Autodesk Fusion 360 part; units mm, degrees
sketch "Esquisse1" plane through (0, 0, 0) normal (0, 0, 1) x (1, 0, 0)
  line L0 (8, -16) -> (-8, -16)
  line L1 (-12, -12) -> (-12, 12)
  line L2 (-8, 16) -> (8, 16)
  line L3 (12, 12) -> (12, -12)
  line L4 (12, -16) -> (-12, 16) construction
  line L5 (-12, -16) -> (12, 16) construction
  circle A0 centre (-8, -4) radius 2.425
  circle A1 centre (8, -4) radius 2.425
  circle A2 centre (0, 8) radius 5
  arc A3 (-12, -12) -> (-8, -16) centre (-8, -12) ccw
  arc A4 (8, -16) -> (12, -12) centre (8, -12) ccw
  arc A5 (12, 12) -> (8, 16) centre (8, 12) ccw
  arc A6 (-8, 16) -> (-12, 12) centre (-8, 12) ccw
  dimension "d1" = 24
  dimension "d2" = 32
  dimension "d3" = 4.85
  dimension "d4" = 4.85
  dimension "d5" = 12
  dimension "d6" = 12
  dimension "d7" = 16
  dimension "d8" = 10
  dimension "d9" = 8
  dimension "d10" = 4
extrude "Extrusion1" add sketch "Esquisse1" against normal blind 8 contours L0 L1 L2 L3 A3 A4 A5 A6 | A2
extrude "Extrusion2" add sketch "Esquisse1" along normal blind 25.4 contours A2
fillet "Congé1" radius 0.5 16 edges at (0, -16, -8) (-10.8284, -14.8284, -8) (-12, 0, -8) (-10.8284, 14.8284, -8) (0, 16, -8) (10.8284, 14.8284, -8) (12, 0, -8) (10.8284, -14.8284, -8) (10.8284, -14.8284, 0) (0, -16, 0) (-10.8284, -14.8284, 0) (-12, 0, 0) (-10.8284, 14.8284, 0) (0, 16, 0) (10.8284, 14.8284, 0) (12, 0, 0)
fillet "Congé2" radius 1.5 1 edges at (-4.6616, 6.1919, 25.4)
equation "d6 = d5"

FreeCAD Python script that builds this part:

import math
import FreeCAD as App
import Part
import Sketcher
Q = App.Units.Quantity


def edges_at(feature, points):
    """Names of the edges that pass closest to the given points."""
    edges = feature.Shape.Edges
    near = lambda p: min(range(len(edges)), key=lambda i: edges[i].distToShape(Part.Vertex(*p))[0])
    return sorted({f"Edge{near(p) + 1}" for p in points})

doc = App.newDocument("Part")
body = doc.addObject("PartDesign::Body", "Body")

# Sketch on XY plane
sketch1 = body.newObject("Sketcher::SketchObject", "Sketch")
sketch1.AttachmentSupport = (doc.getObject("XY_Plane"), [""])
sketch1.MapMode = "FlatFace"
sketch1.addGeometry(Part.LineSegment(App.Vector(-8, -16, 0), App.Vector(8, -16, 0)), False)
sketch1.addGeometry(Part.ArcOfCircle(Part.Circle(App.Vector(8, -12, 0), App.Vector(0, 0, 1), 4), math.radians(-90), math.radians(0)), False)
sketch1.addGeometry(Part.LineSegment(App.Vector(12, -12, 0), App.Vector(12, 12, 0)), False)
sketch1.addGeometry(Part.ArcOfCircle(Part.Circle(App.Vector(8, 12, 0), App.Vector(0, 0, 1), 4), math.radians(0), math.radians(90)), False)
sketch1.addGeometry(Part.LineSegment(App.Vector(8, 16, 0), App.Vector(-8, 16, 0)), False)
sketch1.addGeometry(Part.ArcOfCircle(Part.Circle(App.Vector(-8, 12, 0), App.Vector(0, 0, 1), 4), math.radians(90), math.radians(180)), False)
sketch1.addGeometry(Part.LineSegment(App.Vector(-12, 12, 0), App.Vector(-12, -12, 0)), False)
sketch1.addGeometry(Part.ArcOfCircle(Part.Circle(App.Vector(-8, -12, 0), App.Vector(0, 0, 1), 4), math.radians(180), math.radians(270)), False)
sketch1.addGeometry(Part.Circle(App.Vector(-8, -4, 0), App.Vector(0, 0, 1), 2.4), False)
sketch1.addGeometry(Part.Circle(App.Vector(8, -4, 0), App.Vector(0, 0, 1), 2.4), False)
sketch1.addConstraint(Sketcher.Constraint("Tangent", 0, 2, 1, 1))
sketch1.addConstraint(Sketcher.Constraint("Tangent", 1, 2, 2, 1))
sketch1.addConstraint(Sketcher.Constraint("Tangent", 2, 2, 3, 1))
sketch1.addConstraint(Sketcher.Constraint("Tangent", 3, 2, 4, 1))
sketch1.addConstraint(Sketcher.Constraint("Tangent", 4, 2, 5, 1))
sketch1.addConstraint(Sketcher.Constraint("Tangent", 5, 2, 6, 1))
sketch1.addConstraint(Sketcher.Constraint("Tangent", 6, 2, 7, 1))
sketch1.addConstraint(Sketcher.Constraint("Tangent", 7, 2, 0, 1))
sketch1.addConstraint(Sketcher.Constraint("Horizontal", 0))
sketch1.addConstraint(Sketcher.Constraint("Vertical", 2))
sketch1.addConstraint(Sketcher.Constraint("Horizontal", 4))
sketch1.addConstraint(Sketcher.Constraint("Vertical", 6))
sketch1.addConstraint(Sketcher.Constraint("Equal", 1, 3))
sketch1.addConstraint(Sketcher.Constraint("Equal", 3, 5))
sketch1.addConstraint(Sketcher.Constraint("Equal", 5, 7))
sketch1.addConstraint(Sketcher.Constraint("Equal", 8, 9))
sketch1.addConstraint(Sketcher.Constraint("Symmetric", 1, 3, 5, 3, -1, 1))
sketch1.addConstraint(Sketcher.Constraint("Symmetric", 8, 3, 9, 3, -2))
sketch1.addConstraint(Sketcher.Constraint("Vertical", 7, 3, 8, 3))
sketch1.addConstraint(Sketcher.Constraint("Radius", 1, Q("4 mm")))
sketch1.addConstraint(Sketcher.Constraint("Diameter", 8, Q("4.85 mm")))
sketch1.addConstraint(Sketcher.Constraint("DistanceX", 0, 1, 0, 2, Q("16 mm")))
sketch1.addConstraint(Sketcher.Constraint("DistanceY", 2, 1, 2, 2, Q("24 mm")))
sketch1.addConstraint(Sketcher.Constraint("DistanceY", 8, 3, -1, 1, Q("4 mm")))
pad1 = body.newObject("PartDesign::Pad", "Pad")
pad1.Profile = sketch1
pad1.Length = 8
pad1.Reversed = True

# Sketch on XY plane
sketch2 = body.newObject("Sketcher::SketchObject", "Sketch001")
sketch2.AttachmentSupport = (doc.getObject("XY_Plane"), [""])
sketch2.MapMode = "FlatFace"
sketch2.addGeometry(Part.Circle(App.Vector(0, 8, 0), App.Vector(0, 0, 1), 5), False)
sketch2.addConstraint(Sketcher.Constraint("PointOnObject", 0, 3, -2))
sketch2.addConstraint(Sketcher.Constraint("Diameter", 0, Q("10 mm")))
sketch2.addConstraint(Sketcher.Constraint("DistanceY", -1, 1, 0, 3, Q("8 mm")))
pad2 = body.newObject("PartDesign::Pad", "Pad001")
pad2.Profile = sketch2
pad2.Length = 25.4
doc.recompute()

fillet = body.newObject("PartDesign::Fillet", "Fillet")
fillet.Base = (pad2, edges_at(pad2, [
    (0, -16, -8),
    (-10.828, -14.828, -8),
    (-12, 0, -8),
    (-10.828, 14.828, -8),
    (0, 16, -8),
    (10.828, 14.828, -8),
    (12, 0, -8),
    (10.828, -14.828, -8),
    (10.828, -14.828, 0),
    (0, -16, 0),
    (-10.828, -14.828, 0),
    (-12, 0, 0),
    (-10.828, 14.828, 0),
    (0, 16, 0),
    (10.828, 14.828, 0),
    (12, 0, 0),
]))
fillet.Radius = 0.5
doc.recompute()

fillet2 = body.newObject("PartDesign::Fillet", "Fillet001")
fillet2.Base = (fillet, edges_at(fillet, [(-4.662, 6.192, 25.4)]))
fillet2.Radius = 1.5

doc.recompute()
